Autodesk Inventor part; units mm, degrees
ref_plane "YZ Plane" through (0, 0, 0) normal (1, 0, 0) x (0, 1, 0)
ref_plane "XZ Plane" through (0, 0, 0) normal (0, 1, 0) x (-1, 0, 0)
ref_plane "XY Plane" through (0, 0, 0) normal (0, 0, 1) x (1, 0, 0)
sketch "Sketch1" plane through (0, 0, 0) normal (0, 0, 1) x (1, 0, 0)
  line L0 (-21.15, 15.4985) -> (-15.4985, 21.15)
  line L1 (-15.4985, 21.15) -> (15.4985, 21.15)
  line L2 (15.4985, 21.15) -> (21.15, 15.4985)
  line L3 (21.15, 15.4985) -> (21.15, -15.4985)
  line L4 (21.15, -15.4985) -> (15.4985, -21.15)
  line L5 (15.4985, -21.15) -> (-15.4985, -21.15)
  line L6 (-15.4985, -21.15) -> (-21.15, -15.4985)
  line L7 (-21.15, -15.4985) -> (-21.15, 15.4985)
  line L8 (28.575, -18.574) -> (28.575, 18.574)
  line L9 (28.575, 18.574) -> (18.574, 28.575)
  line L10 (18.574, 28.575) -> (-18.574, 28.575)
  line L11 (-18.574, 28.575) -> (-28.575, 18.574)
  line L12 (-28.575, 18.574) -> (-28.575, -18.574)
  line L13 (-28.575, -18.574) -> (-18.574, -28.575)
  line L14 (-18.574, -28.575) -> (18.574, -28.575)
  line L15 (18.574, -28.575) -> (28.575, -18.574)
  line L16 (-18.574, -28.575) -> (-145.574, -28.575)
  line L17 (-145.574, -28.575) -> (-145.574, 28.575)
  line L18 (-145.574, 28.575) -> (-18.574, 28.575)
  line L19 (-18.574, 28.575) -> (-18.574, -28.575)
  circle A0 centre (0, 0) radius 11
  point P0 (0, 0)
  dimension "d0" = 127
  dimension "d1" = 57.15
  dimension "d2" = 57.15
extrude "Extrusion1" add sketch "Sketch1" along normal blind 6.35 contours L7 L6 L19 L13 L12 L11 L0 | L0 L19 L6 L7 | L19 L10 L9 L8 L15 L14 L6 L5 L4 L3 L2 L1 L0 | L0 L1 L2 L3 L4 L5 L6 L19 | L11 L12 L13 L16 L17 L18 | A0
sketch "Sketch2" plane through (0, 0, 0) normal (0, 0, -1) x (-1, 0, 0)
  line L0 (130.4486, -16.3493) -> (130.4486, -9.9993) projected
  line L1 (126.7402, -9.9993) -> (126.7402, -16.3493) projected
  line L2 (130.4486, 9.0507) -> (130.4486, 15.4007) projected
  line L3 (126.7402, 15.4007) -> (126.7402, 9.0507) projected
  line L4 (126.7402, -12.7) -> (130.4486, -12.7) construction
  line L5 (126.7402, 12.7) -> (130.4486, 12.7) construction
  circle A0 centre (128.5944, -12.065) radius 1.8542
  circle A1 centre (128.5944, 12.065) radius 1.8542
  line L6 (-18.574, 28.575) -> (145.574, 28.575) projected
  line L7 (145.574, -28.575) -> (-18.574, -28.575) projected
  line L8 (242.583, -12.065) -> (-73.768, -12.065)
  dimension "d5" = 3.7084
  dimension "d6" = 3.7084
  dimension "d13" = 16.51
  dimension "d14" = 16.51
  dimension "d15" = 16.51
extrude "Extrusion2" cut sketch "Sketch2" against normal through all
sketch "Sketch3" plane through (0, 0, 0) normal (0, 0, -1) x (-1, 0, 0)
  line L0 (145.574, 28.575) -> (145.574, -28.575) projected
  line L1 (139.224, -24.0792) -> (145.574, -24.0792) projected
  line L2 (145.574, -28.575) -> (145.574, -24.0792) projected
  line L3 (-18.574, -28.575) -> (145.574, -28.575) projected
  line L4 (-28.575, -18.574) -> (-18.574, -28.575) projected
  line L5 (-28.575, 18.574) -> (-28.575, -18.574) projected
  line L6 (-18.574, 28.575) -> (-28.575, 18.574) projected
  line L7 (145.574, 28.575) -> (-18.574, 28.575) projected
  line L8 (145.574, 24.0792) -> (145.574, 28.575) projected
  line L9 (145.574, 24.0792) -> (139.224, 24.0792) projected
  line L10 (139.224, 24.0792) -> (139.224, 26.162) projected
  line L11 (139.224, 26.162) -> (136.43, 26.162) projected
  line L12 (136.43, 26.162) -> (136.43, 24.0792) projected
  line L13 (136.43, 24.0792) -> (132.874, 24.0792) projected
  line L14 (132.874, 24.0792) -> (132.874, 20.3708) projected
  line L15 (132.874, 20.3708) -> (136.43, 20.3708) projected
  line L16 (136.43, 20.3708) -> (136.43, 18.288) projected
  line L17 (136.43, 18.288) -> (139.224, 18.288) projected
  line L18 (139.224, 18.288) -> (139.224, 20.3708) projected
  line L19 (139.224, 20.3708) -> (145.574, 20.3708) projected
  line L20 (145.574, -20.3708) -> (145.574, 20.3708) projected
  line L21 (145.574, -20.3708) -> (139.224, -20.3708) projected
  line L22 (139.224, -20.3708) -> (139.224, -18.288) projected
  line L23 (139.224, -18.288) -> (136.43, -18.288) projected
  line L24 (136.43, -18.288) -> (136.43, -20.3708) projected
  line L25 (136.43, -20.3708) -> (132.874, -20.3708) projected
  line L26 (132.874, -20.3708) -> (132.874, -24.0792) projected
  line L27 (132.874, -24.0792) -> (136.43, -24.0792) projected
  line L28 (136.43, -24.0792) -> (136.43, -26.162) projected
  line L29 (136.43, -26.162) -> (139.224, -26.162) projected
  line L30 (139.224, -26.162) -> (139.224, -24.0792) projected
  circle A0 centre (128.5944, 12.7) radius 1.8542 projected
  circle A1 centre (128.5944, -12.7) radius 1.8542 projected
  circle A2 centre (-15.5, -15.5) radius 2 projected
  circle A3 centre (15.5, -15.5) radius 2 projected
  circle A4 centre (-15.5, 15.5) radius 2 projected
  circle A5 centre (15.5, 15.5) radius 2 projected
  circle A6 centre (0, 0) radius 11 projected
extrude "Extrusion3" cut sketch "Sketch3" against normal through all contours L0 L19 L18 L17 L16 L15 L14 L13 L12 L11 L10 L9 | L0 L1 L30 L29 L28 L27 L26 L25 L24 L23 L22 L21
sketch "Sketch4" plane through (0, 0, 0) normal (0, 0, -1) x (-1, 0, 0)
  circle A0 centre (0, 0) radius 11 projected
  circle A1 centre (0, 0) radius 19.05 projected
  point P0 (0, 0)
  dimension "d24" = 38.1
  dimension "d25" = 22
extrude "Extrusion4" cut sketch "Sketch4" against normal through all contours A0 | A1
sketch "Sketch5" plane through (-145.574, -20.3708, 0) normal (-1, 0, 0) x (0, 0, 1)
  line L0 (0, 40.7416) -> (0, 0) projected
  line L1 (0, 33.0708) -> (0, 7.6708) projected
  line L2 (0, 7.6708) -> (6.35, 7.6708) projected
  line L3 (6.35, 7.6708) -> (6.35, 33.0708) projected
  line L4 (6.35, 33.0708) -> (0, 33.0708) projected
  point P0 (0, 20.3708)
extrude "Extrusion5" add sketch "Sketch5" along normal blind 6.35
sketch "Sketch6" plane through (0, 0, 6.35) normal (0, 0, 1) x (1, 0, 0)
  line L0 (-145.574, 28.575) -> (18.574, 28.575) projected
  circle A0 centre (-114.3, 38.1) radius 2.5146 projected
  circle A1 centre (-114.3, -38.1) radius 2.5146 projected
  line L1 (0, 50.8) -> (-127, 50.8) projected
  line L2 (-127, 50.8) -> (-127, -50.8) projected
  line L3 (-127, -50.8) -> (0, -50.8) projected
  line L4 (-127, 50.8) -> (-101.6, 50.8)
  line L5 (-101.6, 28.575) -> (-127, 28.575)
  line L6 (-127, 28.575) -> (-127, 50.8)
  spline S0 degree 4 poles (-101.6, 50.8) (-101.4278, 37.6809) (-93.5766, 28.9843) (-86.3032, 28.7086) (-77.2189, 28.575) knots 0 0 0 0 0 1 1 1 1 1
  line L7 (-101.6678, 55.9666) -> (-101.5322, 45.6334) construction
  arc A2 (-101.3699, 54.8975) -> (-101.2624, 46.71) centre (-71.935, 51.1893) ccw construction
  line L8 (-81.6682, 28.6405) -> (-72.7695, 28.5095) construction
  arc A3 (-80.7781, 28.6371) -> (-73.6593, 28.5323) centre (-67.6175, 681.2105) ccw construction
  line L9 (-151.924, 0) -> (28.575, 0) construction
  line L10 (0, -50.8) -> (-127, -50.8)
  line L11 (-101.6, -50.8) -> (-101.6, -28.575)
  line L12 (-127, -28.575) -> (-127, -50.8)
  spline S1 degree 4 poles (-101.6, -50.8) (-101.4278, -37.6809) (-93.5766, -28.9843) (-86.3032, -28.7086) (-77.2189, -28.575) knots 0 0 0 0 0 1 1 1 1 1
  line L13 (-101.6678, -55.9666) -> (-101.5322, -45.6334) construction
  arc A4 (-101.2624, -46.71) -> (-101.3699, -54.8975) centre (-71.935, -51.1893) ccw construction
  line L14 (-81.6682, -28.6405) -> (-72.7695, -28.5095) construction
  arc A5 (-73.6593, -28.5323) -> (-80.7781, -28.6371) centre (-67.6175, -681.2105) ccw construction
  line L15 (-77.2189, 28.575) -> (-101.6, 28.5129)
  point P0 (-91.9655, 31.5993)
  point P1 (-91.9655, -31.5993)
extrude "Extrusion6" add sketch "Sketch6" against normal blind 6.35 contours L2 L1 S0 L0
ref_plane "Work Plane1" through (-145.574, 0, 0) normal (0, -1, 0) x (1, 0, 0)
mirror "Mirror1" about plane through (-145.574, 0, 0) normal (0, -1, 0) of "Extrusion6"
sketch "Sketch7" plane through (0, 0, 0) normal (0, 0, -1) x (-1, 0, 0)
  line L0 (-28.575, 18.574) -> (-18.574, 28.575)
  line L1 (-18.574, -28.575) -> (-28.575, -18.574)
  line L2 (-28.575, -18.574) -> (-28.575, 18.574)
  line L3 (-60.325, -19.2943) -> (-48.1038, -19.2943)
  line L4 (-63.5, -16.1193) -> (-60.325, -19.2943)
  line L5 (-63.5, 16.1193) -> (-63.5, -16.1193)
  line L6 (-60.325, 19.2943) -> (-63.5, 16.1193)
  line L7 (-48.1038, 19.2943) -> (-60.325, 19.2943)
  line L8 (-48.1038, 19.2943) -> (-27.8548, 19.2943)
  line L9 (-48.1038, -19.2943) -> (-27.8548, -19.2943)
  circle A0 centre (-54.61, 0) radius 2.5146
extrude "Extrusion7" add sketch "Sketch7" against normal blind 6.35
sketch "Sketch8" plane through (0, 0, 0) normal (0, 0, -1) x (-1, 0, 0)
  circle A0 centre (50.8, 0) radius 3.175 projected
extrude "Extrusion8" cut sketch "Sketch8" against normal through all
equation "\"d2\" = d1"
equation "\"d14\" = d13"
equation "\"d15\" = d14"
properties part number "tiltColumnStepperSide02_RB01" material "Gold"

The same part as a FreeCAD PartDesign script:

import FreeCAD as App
import Part
import Sketcher
Q = App.Units.Quantity

doc = App.newDocument("Part")
params = doc.addObject("Spreadsheet::Sheet", "Params")
for row, (alias, value) in enumerate([
    ("sketch1_height", "2.25 in"),
    ("pad1_length", "0.25 in"),
    ("sketch2_diameter", "0.146 in"),
    ("sketch3_width", "0.25 in"),
    ("sketch3_width2", "0.11 in"),
    ("sketch3_width3", "0.14 in"),
    ("sketch3_height", "0.146 in"),
    ("sketch3_height2", "0.082 in"),
    ("sketch4_diameter", "1.5 in"),
    ("sketch5_width", "1 in"),
    ("sketch5_height", "0.25 in"),
    ("pad2_length", "0.25 in"),
    ("sketch6_width", "1 in"),
    ("sketch6_diameter", "0.198 in"),
    ("pad3_length", "0.25 in"),
    ("sketch7_diameter", "0.198 in"),
    ("pad4_length", "0.25 in"),
    ("sketch8_diameter", "0.25 in"),
], start=1):
    params.set(f"A{row}", alias)
    params.set(f"B{row}", "=" + value)
    params.setAlias(f"B{row}", alias)

body = doc.addObject("PartDesign::Body", "Body")

# Sketch on XY plane
sketch1 = body.newObject("Sketcher::SketchObject", "Sketch")
sketch1.AttachmentSupport = (doc.getObject("XY_Plane"), [""])
sketch1.MapMode = "FlatFace"
sketch1.addGeometry(Part.LineSegment(App.Vector(19, 29, 0), App.Vector(-146, 29, 0)), False)
sketch1.addGeometry(Part.LineSegment(App.Vector(-146, 29, 0), App.Vector(-146, -29, 0)), False)
sketch1.addGeometry(Part.LineSegment(App.Vector(-146, -29, 0), App.Vector(19, -29, 0)), False)
sketch1.addGeometry(Part.LineSegment(App.Vector(19, -29, 0), App.Vector(29, -19, 0)), False)
sketch1.addGeometry(Part.LineSegment(App.Vector(29, -19, 0), App.Vector(29, 19, 0)), False)
sketch1.addGeometry(Part.LineSegment(App.Vector(29, 19, 0), App.Vector(19, 29, 0)), False)
sketch1.addConstraint(Sketcher.Constraint("Coincident", 0, 2, 1, 1))
sketch1.addConstraint(Sketcher.Constraint("Coincident", 1, 2, 2, 1))
sketch1.addConstraint(Sketcher.Constraint("Coincident", 2, 2, 3, 1))
sketch1.addConstraint(Sketcher.Constraint("Coincident", 3, 2, 4, 1))
sketch1.addConstraint(Sketcher.Constraint("Coincident", 4, 2, 5, 1))
sketch1.addConstraint(Sketcher.Constraint("Coincident", 5, 2, 0, 1))
sketch1.addConstraint(Sketcher.Constraint("Horizontal", 0))
sketch1.addConstraint(Sketcher.Constraint("Vertical", 1))
sketch1.addConstraint(Sketcher.Constraint("Horizontal", 2))
sketch1.addConstraint(Sketcher.Constraint("Vertical", 4))
sketch1.addConstraint(Sketcher.Constraint("Symmetric", 2, 2, 5, 2, -1))
sketch1.addConstraint(Sketcher.Constraint("Perpendicular", 3, 5))
sketch1.addConstraint(Sketcher.Constraint("Equal", 3, 5))
sketch1.addConstraint(Sketcher.Constraint("DistanceY", 1, 2, 1, 1, Q("2.25 in")))
sketch1.addConstraint(Sketcher.Constraint("DistanceX", -1, 1, 3, 2, Q("1.125 in")))
sketch1.addConstraint(Sketcher.Constraint("DistanceX", 0, 2, 0, 1, Q("164.148 mm")))
sketch1.addConstraint(Sketcher.Constraint("DistanceY", 4, 1, 4, 2, Q("37.148 mm")))
sketch1.setExpression("Constraints[13]", "Params.sketch1_height")
pad1 = body.newObject("PartDesign::Pad", "Pad")
pad1.Profile = sketch1
pad1.setExpression("Length", "Params.pad1_length")

# Sketch on XY plane
sketch2 = body.newObject("Sketcher::SketchObject", "Sketch001")
sketch2.AttachmentSupport = (doc.getObject("XY_Plane"), [""])
sketch2.MapMode = "FlatFace"
sketch2.addGeometry(Part.Circle(App.Vector(-128.6, -12.1, 0), App.Vector(0, 0, 1), 1.9), False)
sketch2.addGeometry(Part.Circle(App.Vector(-128.6, 12.1, 0), App.Vector(0, 0, 1), 1.9), False)
sketch2.addConstraint(Sketcher.Constraint("Equal", 0, 1))
sketch2.addConstraint(Sketcher.Constraint("Symmetric", 0, 3, 1, 3, -1))
sketch2.addConstraint(Sketcher.Constraint("Diameter", 0, Q("0.146 in")))
sketch2.addConstraint(Sketcher.Constraint("DistanceY", 0, 3, 1, 3, Q("0.95 in")))
sketch2.addConstraint(Sketcher.Constraint("DistanceX", 0, 3, -1, 1, Q("128.5944 mm")))
sketch2.setExpression("Constraints[2]", "Params.sketch2_diameter")
pocket1 = body.newObject("PartDesign::Pocket", "Pocket")
pocket1.Profile = sketch2
pocket1.Type = "ThroughAll"
pocket1.Reversed = True

# Sketch on XY plane
sketch3 = body.newObject("Sketcher::SketchObject", "Sketch002")
sketch3.AttachmentSupport = (doc.getObject("XY_Plane"), [""])
sketch3.MapMode = "FlatFace"
sketch3.addGeometry(Part.LineSegment(App.Vector(-145.6, 20.4, 0), App.Vector(-145.6, 24.1, 0)), False)
sketch3.addGeometry(Part.LineSegment(App.Vector(-145.6, 24.1, 0), App.Vector(-139.2, 24.1, 0)), False)
sketch3.addGeometry(Part.LineSegment(App.Vector(-139.2, 24.1, 0), App.Vector(-139.2, 26.2, 0)), False)
sketch3.addGeometry(Part.LineSegment(App.Vector(-139.2, 26.2, 0), App.Vector(-136.4, 26.2, 0)), False)
sketch3.addGeometry(Part.LineSegment(App.Vector(-136.4, 26.2, 0), App.Vector(-136.4, 24.1, 0)), False)
sketch3.addGeometry(Part.LineSegment(App.Vector(-136.4, 24.1, 0), App.Vector(-132.9, 24.1, 0)), False)
sketch3.addGeometry(Part.LineSegment(App.Vector(-132.9, 24.1, 0), App.Vector(-132.9, 20.4, 0)), False)
sketch3.addGeometry(Part.LineSegment(App.Vector(-132.9, 20.4, 0), App.Vector(-136.4, 20.4, 0)), False)
sketch3.addGeometry(Part.LineSegment(App.Vector(-136.4, 20.4, 0), App.Vector(-136.4, 18.3, 0)), False)
sketch3.addGeometry(Part.LineSegment(App.Vector(-136.4, 18.3, 0), App.Vector(-139.2, 18.3, 0)), False)
sketch3.addGeometry(Part.LineSegment(App.Vector(-139.2, 18.3, 0), App.Vector(-139.2, 20.4, 0)), False)
sketch3.addGeometry(Part.LineSegment(App.Vector(-139.2, 20.4, 0), App.Vector(-145.6, 20.4, 0)), False)
sketch3.addGeometry(Part.LineSegment(App.Vector(-145.6, -24.1, 0), App.Vector(-145.6, -20.4, 0)), False)
sketch3.addGeometry(Part.LineSegment(App.Vector(-145.6, -20.4, 0), App.Vector(-139.2, -20.4, 0)), False)
sketch3.addGeometry(Part.LineSegment(App.Vector(-139.2, -20.4, 0), App.Vector(-139.2, -18.3, 0)), False)
sketch3.addGeometry(Part.LineSegment(App.Vector(-139.2, -18.3, 0), App.Vector(-136.4, -18.3, 0)), False)
sketch3.addGeometry(Part.LineSegment(App.Vector(-136.4, -18.3, 0), App.Vector(-136.4, -20.4, 0)), False)
sketch3.addGeometry(Part.LineSegment(App.Vector(-136.4, -20.4, 0), App.Vector(-132.9, -20.4, 0)), False)
sketch3.addGeometry(Part.LineSegment(App.Vector(-132.9, -20.4, 0), App.Vector(-132.9, -24.1, 0)), False)
sketch3.addGeometry(Part.LineSegment(App.Vector(-132.9, -24.1, 0), App.Vector(-136.4, -24.1, 0)), False)
sketch3.addGeometry(Part.LineSegment(App.Vector(-136.4, -24.1, 0), App.Vector(-136.4, -26.2, 0)), False)
sketch3.addGeometry(Part.LineSegment(App.Vector(-136.4, -26.2, 0), App.Vector(-139.2, -26.2, 0)), False)
sketch3.addGeometry(Part.LineSegment(App.Vector(-139.2, -26.2, 0), App.Vector(-139.2, -24.1, 0)), False)
sketch3.addGeometry(Part.LineSegment(App.Vector(-139.2, -24.1, 0), App.Vector(-145.6, -24.1, 0)), False)
sketch3.addConstraint(Sketcher.Constraint("Coincident", 0, 2, 1, 1))
sketch3.addConstraint(Sketcher.Constraint("Coincident", 1, 2, 2, 1))
sketch3.addConstraint(Sketcher.Constraint("Coincident", 2, 2, 3, 1))
sketch3.addConstraint(Sketcher.Constraint("Coincident", 3, 2, 4, 1))
sketch3.addConstraint(Sketcher.Constraint("Coincident", 4, 2, 5, 1))
sketch3.addConstraint(Sketcher.Constraint("Coincident", 5, 2, 6, 1))
sketch3.addConstraint(Sketcher.Constraint("Coincident", 6, 2, 7, 1))
sketch3.addConstraint(Sketcher.Constraint("Coincident", 7, 2, 8, 1))
sketch3.addConstraint(Sketcher.Constraint("Coincident", 8, 2, 9, 1))
sketch3.addConstraint(Sketcher.Constraint("Coincident", 9, 2, 10, 1))
sketch3.addConstraint(Sketcher.Constraint("Coincident", 10, 2, 11, 1))
sketch3.addConstraint(Sketcher.Constraint("Coincident", 11, 2, 0, 1))
sketch3.addConstraint(Sketcher.Constraint("Coincident", 12, 2, 13, 1))
sketch3.addConstraint(Sketcher.Constraint("Coincident", 13, 2, 14, 1))
sketch3.addConstraint(Sketcher.Constraint("Coincident", 14, 2, 15, 1))
sketch3.addConstraint(Sketcher.Constraint("Coincident", 15, 2, 16, 1))
sketch3.addConstraint(Sketcher.Constraint("Coincident", 16, 2, 17, 1))
sketch3.addConstraint(Sketcher.Constraint("Coincident", 17, 2, 18, 1))
sketch3.addConstraint(Sketcher.Constraint("Coincident", 18, 2, 19, 1))
sketch3.addConstraint(Sketcher.Constraint("Coincident", 19, 2, 20, 1))
sketch3.addConstraint(Sketcher.Constraint("Coincident", 20, 2, 21, 1))
sketch3.addConstraint(Sketcher.Constraint("Coincident", 21, 2, 22, 1))
sketch3.addConstraint(Sketcher.Constraint("Coincident", 22, 2, 23, 1))
sketch3.addConstraint(Sketcher.Constraint("Coincident", 23, 2, 12, 1))
sketch3.addConstraint(Sketcher.Constraint("Vertical", 0))
sketch3.addConstraint(Sketcher.Constraint("Horizontal", 1))
sketch3.addConstraint(Sketcher.Constraint("Vertical", 2))
sketch3.addConstraint(Sketcher.Constraint("Horizontal", 3))
sketch3.addConstraint(Sketcher.Constraint("Vertical", 4))
sketch3.addConstraint(Sketcher.Constraint("Horizontal", 5))
sketch3.addConstraint(Sketcher.Constraint("Vertical", 6))
sketch3.addConstraint(Sketcher.Constraint("Horizontal", 7))
sketch3.addConstraint(Sketcher.Constraint("Vertical", 8))
sketch3.addConstraint(Sketcher.Constraint("Horizontal", 9))
sketch3.addConstraint(Sketcher.Constraint("Vertical", 10))
sketch3.addConstraint(Sketcher.Constraint("Horizontal", 11))
sketch3.addConstraint(Sketcher.Constraint("Vertical", 12))
sketch3.addConstraint(Sketcher.Constraint("Horizontal", 13))
sketch3.addConstraint(Sketcher.Constraint("Vertical", 14))
sketch3.addConstraint(Sketcher.Constraint("Horizontal", 15))
sketch3.addConstraint(Sketcher.Constraint("Vertical", 16))
sketch3.addConstraint(Sketcher.Constraint("Horizontal", 17))
sketch3.addConstraint(Sketcher.Constraint("Vertical", 18))
sketch3.addConstraint(Sketcher.Constraint("Horizontal", 19))
sketch3.addConstraint(Sketcher.Constraint("Vertical", 20))
sketch3.addConstraint(Sketcher.Constraint("Horizontal", 21))
sketch3.addConstraint(Sketcher.Constraint("Vertical", 22))
sketch3.addConstraint(Sketcher.Constraint("Horizontal", 23))
sketch3.addConstraint(Sketcher.Constraint("Symmetric", 11, 2, 12, 2, -1))
sketch3.addConstraint(Sketcher.Constraint("Symmetric", 9, 2, 14, 2, -1))
sketch3.addConstraint(Sketcher.Constraint("Symmetric", 7, 2, 16, 2, -1))
sketch3.addConstraint(Sketcher.Constraint("Symmetric", 5, 2, 18, 2, -1))
sketch3.addConstraint(Sketcher.Constraint("Symmetric", 3, 2, 20, 2, -1))
sketch3.addConstraint(Sketcher.Constraint("Symmetric", 1, 2, 22, 2, -1))
sketch3.addConstraint(Sketcher.Constraint("Horizontal", 1, 2, 4, 2))
sketch3.addConstraint(Sketcher.Constraint("Horizontal", 7, 2, 10, 2))
sketch3.addConstraint(Sketcher.Constraint("Vertical", 4, 2, 7, 2))
sketch3.addConstraint(Sketcher.Constraint("Vertical", 2, 2, 9, 2))
sketch3.addConstraint(Sketcher.Constraint("Equal", 4, 8))
sketch3.addConstraint(Sketcher.Constraint("DistanceX", 1, 1, 1, 2, Q("0.25 in")))
sketch3.addConstraint(Sketcher.Constraint("DistanceX", 3, 1, 3, 2, Q("0.11 in")))
sketch3.addConstraint(Sketcher.Constraint("DistanceX", 5, 1, 5, 2, Q("0.14 in")))
sketch3.addConstraint(Sketcher.Constraint("DistanceY", 0, 1, 0, 2, Q("0.146 in")))
sketch3.addConstraint(Sketcher.Constraint("DistanceY", 2, 1, 2, 2, Q("0.082 in")))
sketch3.addConstraint(Sketcher.Constraint("DistanceY", -1, 1, 2, 2, Q("1.03 in")))
sketch3.addConstraint(Sketcher.Constraint("DistanceX", 0, 2, -1, 1, Q("145.574 mm")))
sketch3.setExpression("Constraints[59]", "Params.sketch3_width")
sketch3.setExpression("Constraints[60]", "Params.sketch3_width2")
sketch3.setExpression("Constraints[61]", "Params.sketch3_width3")
sketch3.setExpression("Constraints[62]", "Params.sketch3_height")
sketch3.setExpression("Constraints[63]", "Params.sketch3_height2")
pocket2 = body.newObject("PartDesign::Pocket", "Pocket001")
pocket2.Profile = sketch3
pocket2.Type = "ThroughAll"
pocket2.Reversed = True

# Sketch on XY plane
sketch4 = body.newObject("Sketcher::SketchObject", "Sketch003")
sketch4.AttachmentSupport = (doc.getObject("XY_Plane"), [""])
sketch4.MapMode = "FlatFace"
sketch4.addGeometry(Part.Circle(App.Vector(0, 0, 0), App.Vector(0, 0, 1), 19), False)
sketch4.addConstraint(Sketcher.Constraint("Coincident", 0, 3, -1, 1))
sketch4.addConstraint(Sketcher.Constraint("Diameter", 0, Q("1.5 in")))
sketch4.setExpression("Constraints[1]", "Params.sketch4_diameter")
pocket3 = body.newObject("PartDesign::Pocket", "Pocket002")
pocket3.Profile = sketch4
pocket3.Type = "ThroughAll"
pocket3.Reversed = True

# Sketch on YZ plane
sketch5 = body.newObject("Sketcher::SketchObject", "Sketch004")
sketch5.AttachmentSupport = (doc.getObject("YZ_Plane"), [""])
sketch5.MapMode = "FlatFace"
sketch5.AttachmentOffset = App.Placement(App.Vector(0, 0, -145.574), App.Rotation())
sketch5.addGeometry(Part.LineSegment(App.Vector(13, 6, 0), App.Vector(13, 0, 0)), False)
sketch5.addGeometry(Part.LineSegment(App.Vector(13, 0, 0), App.Vector(-13, 0, 0)), False)
sketch5.addGeometry(Part.LineSegment(App.Vector(-13, 0, 0), App.Vector(-13, 6, 0)), False)
sketch5.addGeometry(Part.LineSegment(App.Vector(-13, 6, 0), App.Vector(13, 6, 0)), False)
sketch5.addConstraint(Sketcher.Constraint("Coincident", 0, 2, 1, 1))
sketch5.addConstraint(Sketcher.Constraint("Coincident", 1, 2, 2, 1))
sketch5.addConstraint(Sketcher.Constraint("Coincident", 2, 2, 3, 1))
sketch5.addConstraint(Sketcher.Constraint("Coincident", 3, 2, 0, 1))
sketch5.addConstraint(Sketcher.Constraint("Vertical", 0))
sketch5.addConstraint(Sketcher.Constraint("Horizontal", 1))
sketch5.addConstraint(Sketcher.Constraint("Vertical", 2))
sketch5.addConstraint(Sketcher.Constraint("Horizontal", 3))
sketch5.addConstraint(Sketcher.Constraint("Symmetric", 0, 2, 1, 2, -1, 1))
sketch5.addConstraint(Sketcher.Constraint("DistanceX", 1, 2, 1, 1, Q("1 in")))
sketch5.addConstraint(Sketcher.Constraint("DistanceY", 0, 2, 0, 1, Q("0.25 in")))
sketch5.setExpression("Constraints[9]", "Params.sketch5_width")
sketch5.setExpression("Constraints[10]", "Params.sketch5_height")
pad2 = body.newObject("PartDesign::Pad", "Pad001")
pad2.Profile = sketch5
pad2.setExpression("Length", "Params.pad2_length")
pad2.Reversed = True

# Sketch on XY plane
sketch6 = body.newObject("Sketcher::SketchObject", "Sketch005")
sketch6.AttachmentSupport = (doc.getObject("XY_Plane"), [""])
sketch6.MapMode = "FlatFace"
sketch6.AttachmentOffset = App.Placement(App.Vector(0, 0, 0.25 * 25.4), App.Rotation())
sketch6.addGeometry(Part.LineSegment(App.Vector(-127, 50.8, 0), App.Vector(-127, 28.575, 0)), False)
sketch6.addGeometry(Part.LineSegment(App.Vector(-127, 28.575, 0), App.Vector(-77.2189, 28.575, 0)), False)
sketch6.addGeometry(Part.BSplineCurve([App.Vector(-101.6, 50.8, 0), App.Vector(-101.4278, 37.6809, 0), App.Vector(-93.5766, 28.9843, 0), App.Vector(-86.3032, 28.7086, 0), App.Vector(-77.2189, 28.575, 0)], [5, 5], [0, 1], False, 4, [1, 1, 1, 1, 1], False), False)
sketch6.addGeometry(Part.LineSegment(App.Vector(-101.6, 50.8, 0), App.Vector(-127, 50.8, 0)), False)
sketch6.addGeometry(Part.Circle(App.Vector(-114.3, 38.1, 0), App.Vector(0, 0, 1), 2.5146), False)
sketch6.addConstraint(Sketcher.Constraint("Block", 2))
sketch6.addConstraint(Sketcher.Constraint("Coincident", 0, 2, 1, 1))
sketch6.addConstraint(Sketcher.Constraint("Coincident", 1, 2, 2, 2))
sketch6.addConstraint(Sketcher.Constraint("Coincident", 2, 1, 3, 1))
sketch6.addConstraint(Sketcher.Constraint("Coincident", 3, 2, 0, 1))
sketch6.addConstraint(Sketcher.Constraint("Vertical", 0))
sketch6.addConstraint(Sketcher.Constraint("Horizontal", 1))
sketch6.addConstraint(Sketcher.Constraint("Horizontal", 3))
sketch6.addConstraint(Sketcher.Constraint("DistanceX", 3, 2, 3, 1, Q("1 in")))
sketch6.addConstraint(Sketcher.Constraint("Diameter", 4, Q("0.198 in")))
sketch6.addConstraint(Sketcher.Constraint("DistanceX", 4, 3, -1, 1, Q("4.5 in")))
sketch6.addConstraint(Sketcher.Constraint("DistanceY", -1, 1, 4, 3, Q("1.5 in")))
sketch6.setExpression("Constraints[8]", "Params.sketch6_width")
sketch6.setExpression("Constraints[9]", "Params.sketch6_diameter")
pad3 = body.newObject("PartDesign::Pad", "Pad002")
pad3.Profile = sketch6
pad3.setExpression("Length", "Params.pad3_length")
pad3.Reversed = True
doc.recompute()

mirrored = body.newObject("PartDesign::Mirrored", "Mirrored")
mirrored.Originals = [pad3]
mirrored.MirrorPlane = (doc.getObject("XZ_Plane"), [""])
body.Tip = mirrored

# Sketch on XY plane
sketch7 = body.newObject("Sketcher::SketchObject", "Sketch006")
sketch7.AttachmentSupport = (doc.getObject("XY_Plane"), [""])
sketch7.MapMode = "FlatFace"
sketch7.addGeometry(Part.LineSegment(App.Vector(28.6, -18.6, 0), App.Vector(28.6, 18.6, 0)), False)
sketch7.addGeometry(Part.LineSegment(App.Vector(28.6, 18.6, 0), App.Vector(27.9, 19.3, 0)), False)
sketch7.addGeometry(Part.LineSegment(App.Vector(27.9, 19.3, 0), App.Vector(60.3, 19.3, 0)), False)
sketch7.addGeometry(Part.LineSegment(App.Vector(60.3, 19.3, 0), App.Vector(63.5, 16.1, 0)), False)
sketch7.addGeometry(Part.LineSegment(App.Vector(63.5, 16.1, 0), App.Vector(63.5, -16.1, 0)), False)
sketch7.addGeometry(Part.LineSegment(App.Vector(63.5, -16.1, 0), App.Vector(60.3, -19.3, 0)), False)
sketch7.addGeometry(Part.LineSegment(App.Vector(60.3, -19.3, 0), App.Vector(27.9, -19.3, 0)), False)
sketch7.addGeometry(Part.LineSegment(App.Vector(27.9, -19.3, 0), App.Vector(28.6, -18.6, 0)), False)
sketch7.addGeometry(Part.Circle(App.Vector(54.6, 0, 0), App.Vector(0, 0, 1), 2.5), False)
sketch7.addConstraint(Sketcher.Constraint("Coincident", 0, 2, 1, 1))
sketch7.addConstraint(Sketcher.Constraint("Coincident", 1, 2, 2, 1))
sketch7.addConstraint(Sketcher.Constraint("Coincident", 2, 2, 3, 1))
sketch7.addConstraint(Sketcher.Constraint("Coincident", 3, 2, 4, 1))
sketch7.addConstraint(Sketcher.Constraint("Coincident", 4, 2, 5, 1))
sketch7.addConstraint(Sketcher.Constraint("Coincident", 5, 2, 6, 1))
sketch7.addConstraint(Sketcher.Constraint("Coincident", 6, 2, 7, 1))
sketch7.addConstraint(Sketcher.Constraint("Coincident", 7, 2, 0, 1))
sketch7.addConstraint(Sketcher.Constraint("Vertical", 0))
sketch7.addConstraint(Sketcher.Constraint("Horizontal", 2))
sketch7.addConstraint(Sketcher.Constraint("Vertical", 4))
sketch7.addConstraint(Sketcher.Constraint("Horizontal", 6))
sketch7.addConstraint(Sketcher.Constraint("Symmetric", 2, 2, 5, 2, -1))
sketch7.addConstraint(Sketcher.Constraint("PointOnObject", 8, 3, -1))
sketch7.addConstraint(Sketcher.Constraint("Parallel", 1, 3))
sketch7.addConstraint(Sketcher.Constraint("Perpendicular", 3, 5))
sketch7.addConstraint(Sketcher.Constraint("Parallel", 5, 7))
sketch7.addConstraint(Sketcher.Constraint("Vertical", 1, 2, 6, 2))
sketch7.addConstraint(Sketcher.Constraint("Equal", 3, 5))
sketch7.addConstraint(Sketcher.Constraint("Diameter", 8, Q("0.198 in")))
sketch7.addConstraint(Sketcher.Constraint("DistanceX", -1, 1, 3, 2, Q("2.5 in")))
sketch7.addConstraint(Sketcher.Constraint("DistanceX", -1, 1, 8, 3, Q("2.15 in")))
sketch7.addConstraint(Sketcher.Constraint("DistanceX", 0, 2, 2, 2, Q("1.25 in")))
sketch7.addConstraint(Sketcher.Constraint("DistanceX", -1, 1, 0, 2, Q("1.125 in")))
sketch7.addConstraint(Sketcher.Constraint("Distance", 1, Q("0.0401 in")))
sketch7.addConstraint(Sketcher.Constraint("DistanceY", 0, 1, 0, 2, Q("37.148 mm")))
sketch7.setExpression("Constraints[19]", "Params.sketch7_diameter")
pad4 = body.newObject("PartDesign::Pad", "Pad003")
pad4.Profile = sketch7
pad4.setExpression("Length", "Params.pad4_length")

# Sketch on XY plane
sketch8 = body.newObject("Sketcher::SketchObject", "Sketch007")
sketch8.AttachmentSupport = (doc.getObject("XY_Plane"), [""])
sketch8.MapMode = "FlatFace"
sketch8.addGeometry(Part.Circle(App.Vector(-50.8, 0, 0), App.Vector(0, 0, 1), 3.2), False)
sketch8.addConstraint(Sketcher.Constraint("PointOnObject", 0, 3, -1))
sketch8.addConstraint(Sketcher.Constraint("Diameter", 0, Q("0.25 in")))
sketch8.addConstraint(Sketcher.Constraint("DistanceX", 0, 3, -1, 1, Q("2 in")))
sketch8.setExpression("Constraints[1]", "Params.sketch8_diameter")
pocket4 = body.newObject("PartDesign::Pocket", "Pocket003")
pocket4.Profile = sketch8
pocket4.Type = "ThroughAll"
pocket4.Reversed = True

doc.recompute()
